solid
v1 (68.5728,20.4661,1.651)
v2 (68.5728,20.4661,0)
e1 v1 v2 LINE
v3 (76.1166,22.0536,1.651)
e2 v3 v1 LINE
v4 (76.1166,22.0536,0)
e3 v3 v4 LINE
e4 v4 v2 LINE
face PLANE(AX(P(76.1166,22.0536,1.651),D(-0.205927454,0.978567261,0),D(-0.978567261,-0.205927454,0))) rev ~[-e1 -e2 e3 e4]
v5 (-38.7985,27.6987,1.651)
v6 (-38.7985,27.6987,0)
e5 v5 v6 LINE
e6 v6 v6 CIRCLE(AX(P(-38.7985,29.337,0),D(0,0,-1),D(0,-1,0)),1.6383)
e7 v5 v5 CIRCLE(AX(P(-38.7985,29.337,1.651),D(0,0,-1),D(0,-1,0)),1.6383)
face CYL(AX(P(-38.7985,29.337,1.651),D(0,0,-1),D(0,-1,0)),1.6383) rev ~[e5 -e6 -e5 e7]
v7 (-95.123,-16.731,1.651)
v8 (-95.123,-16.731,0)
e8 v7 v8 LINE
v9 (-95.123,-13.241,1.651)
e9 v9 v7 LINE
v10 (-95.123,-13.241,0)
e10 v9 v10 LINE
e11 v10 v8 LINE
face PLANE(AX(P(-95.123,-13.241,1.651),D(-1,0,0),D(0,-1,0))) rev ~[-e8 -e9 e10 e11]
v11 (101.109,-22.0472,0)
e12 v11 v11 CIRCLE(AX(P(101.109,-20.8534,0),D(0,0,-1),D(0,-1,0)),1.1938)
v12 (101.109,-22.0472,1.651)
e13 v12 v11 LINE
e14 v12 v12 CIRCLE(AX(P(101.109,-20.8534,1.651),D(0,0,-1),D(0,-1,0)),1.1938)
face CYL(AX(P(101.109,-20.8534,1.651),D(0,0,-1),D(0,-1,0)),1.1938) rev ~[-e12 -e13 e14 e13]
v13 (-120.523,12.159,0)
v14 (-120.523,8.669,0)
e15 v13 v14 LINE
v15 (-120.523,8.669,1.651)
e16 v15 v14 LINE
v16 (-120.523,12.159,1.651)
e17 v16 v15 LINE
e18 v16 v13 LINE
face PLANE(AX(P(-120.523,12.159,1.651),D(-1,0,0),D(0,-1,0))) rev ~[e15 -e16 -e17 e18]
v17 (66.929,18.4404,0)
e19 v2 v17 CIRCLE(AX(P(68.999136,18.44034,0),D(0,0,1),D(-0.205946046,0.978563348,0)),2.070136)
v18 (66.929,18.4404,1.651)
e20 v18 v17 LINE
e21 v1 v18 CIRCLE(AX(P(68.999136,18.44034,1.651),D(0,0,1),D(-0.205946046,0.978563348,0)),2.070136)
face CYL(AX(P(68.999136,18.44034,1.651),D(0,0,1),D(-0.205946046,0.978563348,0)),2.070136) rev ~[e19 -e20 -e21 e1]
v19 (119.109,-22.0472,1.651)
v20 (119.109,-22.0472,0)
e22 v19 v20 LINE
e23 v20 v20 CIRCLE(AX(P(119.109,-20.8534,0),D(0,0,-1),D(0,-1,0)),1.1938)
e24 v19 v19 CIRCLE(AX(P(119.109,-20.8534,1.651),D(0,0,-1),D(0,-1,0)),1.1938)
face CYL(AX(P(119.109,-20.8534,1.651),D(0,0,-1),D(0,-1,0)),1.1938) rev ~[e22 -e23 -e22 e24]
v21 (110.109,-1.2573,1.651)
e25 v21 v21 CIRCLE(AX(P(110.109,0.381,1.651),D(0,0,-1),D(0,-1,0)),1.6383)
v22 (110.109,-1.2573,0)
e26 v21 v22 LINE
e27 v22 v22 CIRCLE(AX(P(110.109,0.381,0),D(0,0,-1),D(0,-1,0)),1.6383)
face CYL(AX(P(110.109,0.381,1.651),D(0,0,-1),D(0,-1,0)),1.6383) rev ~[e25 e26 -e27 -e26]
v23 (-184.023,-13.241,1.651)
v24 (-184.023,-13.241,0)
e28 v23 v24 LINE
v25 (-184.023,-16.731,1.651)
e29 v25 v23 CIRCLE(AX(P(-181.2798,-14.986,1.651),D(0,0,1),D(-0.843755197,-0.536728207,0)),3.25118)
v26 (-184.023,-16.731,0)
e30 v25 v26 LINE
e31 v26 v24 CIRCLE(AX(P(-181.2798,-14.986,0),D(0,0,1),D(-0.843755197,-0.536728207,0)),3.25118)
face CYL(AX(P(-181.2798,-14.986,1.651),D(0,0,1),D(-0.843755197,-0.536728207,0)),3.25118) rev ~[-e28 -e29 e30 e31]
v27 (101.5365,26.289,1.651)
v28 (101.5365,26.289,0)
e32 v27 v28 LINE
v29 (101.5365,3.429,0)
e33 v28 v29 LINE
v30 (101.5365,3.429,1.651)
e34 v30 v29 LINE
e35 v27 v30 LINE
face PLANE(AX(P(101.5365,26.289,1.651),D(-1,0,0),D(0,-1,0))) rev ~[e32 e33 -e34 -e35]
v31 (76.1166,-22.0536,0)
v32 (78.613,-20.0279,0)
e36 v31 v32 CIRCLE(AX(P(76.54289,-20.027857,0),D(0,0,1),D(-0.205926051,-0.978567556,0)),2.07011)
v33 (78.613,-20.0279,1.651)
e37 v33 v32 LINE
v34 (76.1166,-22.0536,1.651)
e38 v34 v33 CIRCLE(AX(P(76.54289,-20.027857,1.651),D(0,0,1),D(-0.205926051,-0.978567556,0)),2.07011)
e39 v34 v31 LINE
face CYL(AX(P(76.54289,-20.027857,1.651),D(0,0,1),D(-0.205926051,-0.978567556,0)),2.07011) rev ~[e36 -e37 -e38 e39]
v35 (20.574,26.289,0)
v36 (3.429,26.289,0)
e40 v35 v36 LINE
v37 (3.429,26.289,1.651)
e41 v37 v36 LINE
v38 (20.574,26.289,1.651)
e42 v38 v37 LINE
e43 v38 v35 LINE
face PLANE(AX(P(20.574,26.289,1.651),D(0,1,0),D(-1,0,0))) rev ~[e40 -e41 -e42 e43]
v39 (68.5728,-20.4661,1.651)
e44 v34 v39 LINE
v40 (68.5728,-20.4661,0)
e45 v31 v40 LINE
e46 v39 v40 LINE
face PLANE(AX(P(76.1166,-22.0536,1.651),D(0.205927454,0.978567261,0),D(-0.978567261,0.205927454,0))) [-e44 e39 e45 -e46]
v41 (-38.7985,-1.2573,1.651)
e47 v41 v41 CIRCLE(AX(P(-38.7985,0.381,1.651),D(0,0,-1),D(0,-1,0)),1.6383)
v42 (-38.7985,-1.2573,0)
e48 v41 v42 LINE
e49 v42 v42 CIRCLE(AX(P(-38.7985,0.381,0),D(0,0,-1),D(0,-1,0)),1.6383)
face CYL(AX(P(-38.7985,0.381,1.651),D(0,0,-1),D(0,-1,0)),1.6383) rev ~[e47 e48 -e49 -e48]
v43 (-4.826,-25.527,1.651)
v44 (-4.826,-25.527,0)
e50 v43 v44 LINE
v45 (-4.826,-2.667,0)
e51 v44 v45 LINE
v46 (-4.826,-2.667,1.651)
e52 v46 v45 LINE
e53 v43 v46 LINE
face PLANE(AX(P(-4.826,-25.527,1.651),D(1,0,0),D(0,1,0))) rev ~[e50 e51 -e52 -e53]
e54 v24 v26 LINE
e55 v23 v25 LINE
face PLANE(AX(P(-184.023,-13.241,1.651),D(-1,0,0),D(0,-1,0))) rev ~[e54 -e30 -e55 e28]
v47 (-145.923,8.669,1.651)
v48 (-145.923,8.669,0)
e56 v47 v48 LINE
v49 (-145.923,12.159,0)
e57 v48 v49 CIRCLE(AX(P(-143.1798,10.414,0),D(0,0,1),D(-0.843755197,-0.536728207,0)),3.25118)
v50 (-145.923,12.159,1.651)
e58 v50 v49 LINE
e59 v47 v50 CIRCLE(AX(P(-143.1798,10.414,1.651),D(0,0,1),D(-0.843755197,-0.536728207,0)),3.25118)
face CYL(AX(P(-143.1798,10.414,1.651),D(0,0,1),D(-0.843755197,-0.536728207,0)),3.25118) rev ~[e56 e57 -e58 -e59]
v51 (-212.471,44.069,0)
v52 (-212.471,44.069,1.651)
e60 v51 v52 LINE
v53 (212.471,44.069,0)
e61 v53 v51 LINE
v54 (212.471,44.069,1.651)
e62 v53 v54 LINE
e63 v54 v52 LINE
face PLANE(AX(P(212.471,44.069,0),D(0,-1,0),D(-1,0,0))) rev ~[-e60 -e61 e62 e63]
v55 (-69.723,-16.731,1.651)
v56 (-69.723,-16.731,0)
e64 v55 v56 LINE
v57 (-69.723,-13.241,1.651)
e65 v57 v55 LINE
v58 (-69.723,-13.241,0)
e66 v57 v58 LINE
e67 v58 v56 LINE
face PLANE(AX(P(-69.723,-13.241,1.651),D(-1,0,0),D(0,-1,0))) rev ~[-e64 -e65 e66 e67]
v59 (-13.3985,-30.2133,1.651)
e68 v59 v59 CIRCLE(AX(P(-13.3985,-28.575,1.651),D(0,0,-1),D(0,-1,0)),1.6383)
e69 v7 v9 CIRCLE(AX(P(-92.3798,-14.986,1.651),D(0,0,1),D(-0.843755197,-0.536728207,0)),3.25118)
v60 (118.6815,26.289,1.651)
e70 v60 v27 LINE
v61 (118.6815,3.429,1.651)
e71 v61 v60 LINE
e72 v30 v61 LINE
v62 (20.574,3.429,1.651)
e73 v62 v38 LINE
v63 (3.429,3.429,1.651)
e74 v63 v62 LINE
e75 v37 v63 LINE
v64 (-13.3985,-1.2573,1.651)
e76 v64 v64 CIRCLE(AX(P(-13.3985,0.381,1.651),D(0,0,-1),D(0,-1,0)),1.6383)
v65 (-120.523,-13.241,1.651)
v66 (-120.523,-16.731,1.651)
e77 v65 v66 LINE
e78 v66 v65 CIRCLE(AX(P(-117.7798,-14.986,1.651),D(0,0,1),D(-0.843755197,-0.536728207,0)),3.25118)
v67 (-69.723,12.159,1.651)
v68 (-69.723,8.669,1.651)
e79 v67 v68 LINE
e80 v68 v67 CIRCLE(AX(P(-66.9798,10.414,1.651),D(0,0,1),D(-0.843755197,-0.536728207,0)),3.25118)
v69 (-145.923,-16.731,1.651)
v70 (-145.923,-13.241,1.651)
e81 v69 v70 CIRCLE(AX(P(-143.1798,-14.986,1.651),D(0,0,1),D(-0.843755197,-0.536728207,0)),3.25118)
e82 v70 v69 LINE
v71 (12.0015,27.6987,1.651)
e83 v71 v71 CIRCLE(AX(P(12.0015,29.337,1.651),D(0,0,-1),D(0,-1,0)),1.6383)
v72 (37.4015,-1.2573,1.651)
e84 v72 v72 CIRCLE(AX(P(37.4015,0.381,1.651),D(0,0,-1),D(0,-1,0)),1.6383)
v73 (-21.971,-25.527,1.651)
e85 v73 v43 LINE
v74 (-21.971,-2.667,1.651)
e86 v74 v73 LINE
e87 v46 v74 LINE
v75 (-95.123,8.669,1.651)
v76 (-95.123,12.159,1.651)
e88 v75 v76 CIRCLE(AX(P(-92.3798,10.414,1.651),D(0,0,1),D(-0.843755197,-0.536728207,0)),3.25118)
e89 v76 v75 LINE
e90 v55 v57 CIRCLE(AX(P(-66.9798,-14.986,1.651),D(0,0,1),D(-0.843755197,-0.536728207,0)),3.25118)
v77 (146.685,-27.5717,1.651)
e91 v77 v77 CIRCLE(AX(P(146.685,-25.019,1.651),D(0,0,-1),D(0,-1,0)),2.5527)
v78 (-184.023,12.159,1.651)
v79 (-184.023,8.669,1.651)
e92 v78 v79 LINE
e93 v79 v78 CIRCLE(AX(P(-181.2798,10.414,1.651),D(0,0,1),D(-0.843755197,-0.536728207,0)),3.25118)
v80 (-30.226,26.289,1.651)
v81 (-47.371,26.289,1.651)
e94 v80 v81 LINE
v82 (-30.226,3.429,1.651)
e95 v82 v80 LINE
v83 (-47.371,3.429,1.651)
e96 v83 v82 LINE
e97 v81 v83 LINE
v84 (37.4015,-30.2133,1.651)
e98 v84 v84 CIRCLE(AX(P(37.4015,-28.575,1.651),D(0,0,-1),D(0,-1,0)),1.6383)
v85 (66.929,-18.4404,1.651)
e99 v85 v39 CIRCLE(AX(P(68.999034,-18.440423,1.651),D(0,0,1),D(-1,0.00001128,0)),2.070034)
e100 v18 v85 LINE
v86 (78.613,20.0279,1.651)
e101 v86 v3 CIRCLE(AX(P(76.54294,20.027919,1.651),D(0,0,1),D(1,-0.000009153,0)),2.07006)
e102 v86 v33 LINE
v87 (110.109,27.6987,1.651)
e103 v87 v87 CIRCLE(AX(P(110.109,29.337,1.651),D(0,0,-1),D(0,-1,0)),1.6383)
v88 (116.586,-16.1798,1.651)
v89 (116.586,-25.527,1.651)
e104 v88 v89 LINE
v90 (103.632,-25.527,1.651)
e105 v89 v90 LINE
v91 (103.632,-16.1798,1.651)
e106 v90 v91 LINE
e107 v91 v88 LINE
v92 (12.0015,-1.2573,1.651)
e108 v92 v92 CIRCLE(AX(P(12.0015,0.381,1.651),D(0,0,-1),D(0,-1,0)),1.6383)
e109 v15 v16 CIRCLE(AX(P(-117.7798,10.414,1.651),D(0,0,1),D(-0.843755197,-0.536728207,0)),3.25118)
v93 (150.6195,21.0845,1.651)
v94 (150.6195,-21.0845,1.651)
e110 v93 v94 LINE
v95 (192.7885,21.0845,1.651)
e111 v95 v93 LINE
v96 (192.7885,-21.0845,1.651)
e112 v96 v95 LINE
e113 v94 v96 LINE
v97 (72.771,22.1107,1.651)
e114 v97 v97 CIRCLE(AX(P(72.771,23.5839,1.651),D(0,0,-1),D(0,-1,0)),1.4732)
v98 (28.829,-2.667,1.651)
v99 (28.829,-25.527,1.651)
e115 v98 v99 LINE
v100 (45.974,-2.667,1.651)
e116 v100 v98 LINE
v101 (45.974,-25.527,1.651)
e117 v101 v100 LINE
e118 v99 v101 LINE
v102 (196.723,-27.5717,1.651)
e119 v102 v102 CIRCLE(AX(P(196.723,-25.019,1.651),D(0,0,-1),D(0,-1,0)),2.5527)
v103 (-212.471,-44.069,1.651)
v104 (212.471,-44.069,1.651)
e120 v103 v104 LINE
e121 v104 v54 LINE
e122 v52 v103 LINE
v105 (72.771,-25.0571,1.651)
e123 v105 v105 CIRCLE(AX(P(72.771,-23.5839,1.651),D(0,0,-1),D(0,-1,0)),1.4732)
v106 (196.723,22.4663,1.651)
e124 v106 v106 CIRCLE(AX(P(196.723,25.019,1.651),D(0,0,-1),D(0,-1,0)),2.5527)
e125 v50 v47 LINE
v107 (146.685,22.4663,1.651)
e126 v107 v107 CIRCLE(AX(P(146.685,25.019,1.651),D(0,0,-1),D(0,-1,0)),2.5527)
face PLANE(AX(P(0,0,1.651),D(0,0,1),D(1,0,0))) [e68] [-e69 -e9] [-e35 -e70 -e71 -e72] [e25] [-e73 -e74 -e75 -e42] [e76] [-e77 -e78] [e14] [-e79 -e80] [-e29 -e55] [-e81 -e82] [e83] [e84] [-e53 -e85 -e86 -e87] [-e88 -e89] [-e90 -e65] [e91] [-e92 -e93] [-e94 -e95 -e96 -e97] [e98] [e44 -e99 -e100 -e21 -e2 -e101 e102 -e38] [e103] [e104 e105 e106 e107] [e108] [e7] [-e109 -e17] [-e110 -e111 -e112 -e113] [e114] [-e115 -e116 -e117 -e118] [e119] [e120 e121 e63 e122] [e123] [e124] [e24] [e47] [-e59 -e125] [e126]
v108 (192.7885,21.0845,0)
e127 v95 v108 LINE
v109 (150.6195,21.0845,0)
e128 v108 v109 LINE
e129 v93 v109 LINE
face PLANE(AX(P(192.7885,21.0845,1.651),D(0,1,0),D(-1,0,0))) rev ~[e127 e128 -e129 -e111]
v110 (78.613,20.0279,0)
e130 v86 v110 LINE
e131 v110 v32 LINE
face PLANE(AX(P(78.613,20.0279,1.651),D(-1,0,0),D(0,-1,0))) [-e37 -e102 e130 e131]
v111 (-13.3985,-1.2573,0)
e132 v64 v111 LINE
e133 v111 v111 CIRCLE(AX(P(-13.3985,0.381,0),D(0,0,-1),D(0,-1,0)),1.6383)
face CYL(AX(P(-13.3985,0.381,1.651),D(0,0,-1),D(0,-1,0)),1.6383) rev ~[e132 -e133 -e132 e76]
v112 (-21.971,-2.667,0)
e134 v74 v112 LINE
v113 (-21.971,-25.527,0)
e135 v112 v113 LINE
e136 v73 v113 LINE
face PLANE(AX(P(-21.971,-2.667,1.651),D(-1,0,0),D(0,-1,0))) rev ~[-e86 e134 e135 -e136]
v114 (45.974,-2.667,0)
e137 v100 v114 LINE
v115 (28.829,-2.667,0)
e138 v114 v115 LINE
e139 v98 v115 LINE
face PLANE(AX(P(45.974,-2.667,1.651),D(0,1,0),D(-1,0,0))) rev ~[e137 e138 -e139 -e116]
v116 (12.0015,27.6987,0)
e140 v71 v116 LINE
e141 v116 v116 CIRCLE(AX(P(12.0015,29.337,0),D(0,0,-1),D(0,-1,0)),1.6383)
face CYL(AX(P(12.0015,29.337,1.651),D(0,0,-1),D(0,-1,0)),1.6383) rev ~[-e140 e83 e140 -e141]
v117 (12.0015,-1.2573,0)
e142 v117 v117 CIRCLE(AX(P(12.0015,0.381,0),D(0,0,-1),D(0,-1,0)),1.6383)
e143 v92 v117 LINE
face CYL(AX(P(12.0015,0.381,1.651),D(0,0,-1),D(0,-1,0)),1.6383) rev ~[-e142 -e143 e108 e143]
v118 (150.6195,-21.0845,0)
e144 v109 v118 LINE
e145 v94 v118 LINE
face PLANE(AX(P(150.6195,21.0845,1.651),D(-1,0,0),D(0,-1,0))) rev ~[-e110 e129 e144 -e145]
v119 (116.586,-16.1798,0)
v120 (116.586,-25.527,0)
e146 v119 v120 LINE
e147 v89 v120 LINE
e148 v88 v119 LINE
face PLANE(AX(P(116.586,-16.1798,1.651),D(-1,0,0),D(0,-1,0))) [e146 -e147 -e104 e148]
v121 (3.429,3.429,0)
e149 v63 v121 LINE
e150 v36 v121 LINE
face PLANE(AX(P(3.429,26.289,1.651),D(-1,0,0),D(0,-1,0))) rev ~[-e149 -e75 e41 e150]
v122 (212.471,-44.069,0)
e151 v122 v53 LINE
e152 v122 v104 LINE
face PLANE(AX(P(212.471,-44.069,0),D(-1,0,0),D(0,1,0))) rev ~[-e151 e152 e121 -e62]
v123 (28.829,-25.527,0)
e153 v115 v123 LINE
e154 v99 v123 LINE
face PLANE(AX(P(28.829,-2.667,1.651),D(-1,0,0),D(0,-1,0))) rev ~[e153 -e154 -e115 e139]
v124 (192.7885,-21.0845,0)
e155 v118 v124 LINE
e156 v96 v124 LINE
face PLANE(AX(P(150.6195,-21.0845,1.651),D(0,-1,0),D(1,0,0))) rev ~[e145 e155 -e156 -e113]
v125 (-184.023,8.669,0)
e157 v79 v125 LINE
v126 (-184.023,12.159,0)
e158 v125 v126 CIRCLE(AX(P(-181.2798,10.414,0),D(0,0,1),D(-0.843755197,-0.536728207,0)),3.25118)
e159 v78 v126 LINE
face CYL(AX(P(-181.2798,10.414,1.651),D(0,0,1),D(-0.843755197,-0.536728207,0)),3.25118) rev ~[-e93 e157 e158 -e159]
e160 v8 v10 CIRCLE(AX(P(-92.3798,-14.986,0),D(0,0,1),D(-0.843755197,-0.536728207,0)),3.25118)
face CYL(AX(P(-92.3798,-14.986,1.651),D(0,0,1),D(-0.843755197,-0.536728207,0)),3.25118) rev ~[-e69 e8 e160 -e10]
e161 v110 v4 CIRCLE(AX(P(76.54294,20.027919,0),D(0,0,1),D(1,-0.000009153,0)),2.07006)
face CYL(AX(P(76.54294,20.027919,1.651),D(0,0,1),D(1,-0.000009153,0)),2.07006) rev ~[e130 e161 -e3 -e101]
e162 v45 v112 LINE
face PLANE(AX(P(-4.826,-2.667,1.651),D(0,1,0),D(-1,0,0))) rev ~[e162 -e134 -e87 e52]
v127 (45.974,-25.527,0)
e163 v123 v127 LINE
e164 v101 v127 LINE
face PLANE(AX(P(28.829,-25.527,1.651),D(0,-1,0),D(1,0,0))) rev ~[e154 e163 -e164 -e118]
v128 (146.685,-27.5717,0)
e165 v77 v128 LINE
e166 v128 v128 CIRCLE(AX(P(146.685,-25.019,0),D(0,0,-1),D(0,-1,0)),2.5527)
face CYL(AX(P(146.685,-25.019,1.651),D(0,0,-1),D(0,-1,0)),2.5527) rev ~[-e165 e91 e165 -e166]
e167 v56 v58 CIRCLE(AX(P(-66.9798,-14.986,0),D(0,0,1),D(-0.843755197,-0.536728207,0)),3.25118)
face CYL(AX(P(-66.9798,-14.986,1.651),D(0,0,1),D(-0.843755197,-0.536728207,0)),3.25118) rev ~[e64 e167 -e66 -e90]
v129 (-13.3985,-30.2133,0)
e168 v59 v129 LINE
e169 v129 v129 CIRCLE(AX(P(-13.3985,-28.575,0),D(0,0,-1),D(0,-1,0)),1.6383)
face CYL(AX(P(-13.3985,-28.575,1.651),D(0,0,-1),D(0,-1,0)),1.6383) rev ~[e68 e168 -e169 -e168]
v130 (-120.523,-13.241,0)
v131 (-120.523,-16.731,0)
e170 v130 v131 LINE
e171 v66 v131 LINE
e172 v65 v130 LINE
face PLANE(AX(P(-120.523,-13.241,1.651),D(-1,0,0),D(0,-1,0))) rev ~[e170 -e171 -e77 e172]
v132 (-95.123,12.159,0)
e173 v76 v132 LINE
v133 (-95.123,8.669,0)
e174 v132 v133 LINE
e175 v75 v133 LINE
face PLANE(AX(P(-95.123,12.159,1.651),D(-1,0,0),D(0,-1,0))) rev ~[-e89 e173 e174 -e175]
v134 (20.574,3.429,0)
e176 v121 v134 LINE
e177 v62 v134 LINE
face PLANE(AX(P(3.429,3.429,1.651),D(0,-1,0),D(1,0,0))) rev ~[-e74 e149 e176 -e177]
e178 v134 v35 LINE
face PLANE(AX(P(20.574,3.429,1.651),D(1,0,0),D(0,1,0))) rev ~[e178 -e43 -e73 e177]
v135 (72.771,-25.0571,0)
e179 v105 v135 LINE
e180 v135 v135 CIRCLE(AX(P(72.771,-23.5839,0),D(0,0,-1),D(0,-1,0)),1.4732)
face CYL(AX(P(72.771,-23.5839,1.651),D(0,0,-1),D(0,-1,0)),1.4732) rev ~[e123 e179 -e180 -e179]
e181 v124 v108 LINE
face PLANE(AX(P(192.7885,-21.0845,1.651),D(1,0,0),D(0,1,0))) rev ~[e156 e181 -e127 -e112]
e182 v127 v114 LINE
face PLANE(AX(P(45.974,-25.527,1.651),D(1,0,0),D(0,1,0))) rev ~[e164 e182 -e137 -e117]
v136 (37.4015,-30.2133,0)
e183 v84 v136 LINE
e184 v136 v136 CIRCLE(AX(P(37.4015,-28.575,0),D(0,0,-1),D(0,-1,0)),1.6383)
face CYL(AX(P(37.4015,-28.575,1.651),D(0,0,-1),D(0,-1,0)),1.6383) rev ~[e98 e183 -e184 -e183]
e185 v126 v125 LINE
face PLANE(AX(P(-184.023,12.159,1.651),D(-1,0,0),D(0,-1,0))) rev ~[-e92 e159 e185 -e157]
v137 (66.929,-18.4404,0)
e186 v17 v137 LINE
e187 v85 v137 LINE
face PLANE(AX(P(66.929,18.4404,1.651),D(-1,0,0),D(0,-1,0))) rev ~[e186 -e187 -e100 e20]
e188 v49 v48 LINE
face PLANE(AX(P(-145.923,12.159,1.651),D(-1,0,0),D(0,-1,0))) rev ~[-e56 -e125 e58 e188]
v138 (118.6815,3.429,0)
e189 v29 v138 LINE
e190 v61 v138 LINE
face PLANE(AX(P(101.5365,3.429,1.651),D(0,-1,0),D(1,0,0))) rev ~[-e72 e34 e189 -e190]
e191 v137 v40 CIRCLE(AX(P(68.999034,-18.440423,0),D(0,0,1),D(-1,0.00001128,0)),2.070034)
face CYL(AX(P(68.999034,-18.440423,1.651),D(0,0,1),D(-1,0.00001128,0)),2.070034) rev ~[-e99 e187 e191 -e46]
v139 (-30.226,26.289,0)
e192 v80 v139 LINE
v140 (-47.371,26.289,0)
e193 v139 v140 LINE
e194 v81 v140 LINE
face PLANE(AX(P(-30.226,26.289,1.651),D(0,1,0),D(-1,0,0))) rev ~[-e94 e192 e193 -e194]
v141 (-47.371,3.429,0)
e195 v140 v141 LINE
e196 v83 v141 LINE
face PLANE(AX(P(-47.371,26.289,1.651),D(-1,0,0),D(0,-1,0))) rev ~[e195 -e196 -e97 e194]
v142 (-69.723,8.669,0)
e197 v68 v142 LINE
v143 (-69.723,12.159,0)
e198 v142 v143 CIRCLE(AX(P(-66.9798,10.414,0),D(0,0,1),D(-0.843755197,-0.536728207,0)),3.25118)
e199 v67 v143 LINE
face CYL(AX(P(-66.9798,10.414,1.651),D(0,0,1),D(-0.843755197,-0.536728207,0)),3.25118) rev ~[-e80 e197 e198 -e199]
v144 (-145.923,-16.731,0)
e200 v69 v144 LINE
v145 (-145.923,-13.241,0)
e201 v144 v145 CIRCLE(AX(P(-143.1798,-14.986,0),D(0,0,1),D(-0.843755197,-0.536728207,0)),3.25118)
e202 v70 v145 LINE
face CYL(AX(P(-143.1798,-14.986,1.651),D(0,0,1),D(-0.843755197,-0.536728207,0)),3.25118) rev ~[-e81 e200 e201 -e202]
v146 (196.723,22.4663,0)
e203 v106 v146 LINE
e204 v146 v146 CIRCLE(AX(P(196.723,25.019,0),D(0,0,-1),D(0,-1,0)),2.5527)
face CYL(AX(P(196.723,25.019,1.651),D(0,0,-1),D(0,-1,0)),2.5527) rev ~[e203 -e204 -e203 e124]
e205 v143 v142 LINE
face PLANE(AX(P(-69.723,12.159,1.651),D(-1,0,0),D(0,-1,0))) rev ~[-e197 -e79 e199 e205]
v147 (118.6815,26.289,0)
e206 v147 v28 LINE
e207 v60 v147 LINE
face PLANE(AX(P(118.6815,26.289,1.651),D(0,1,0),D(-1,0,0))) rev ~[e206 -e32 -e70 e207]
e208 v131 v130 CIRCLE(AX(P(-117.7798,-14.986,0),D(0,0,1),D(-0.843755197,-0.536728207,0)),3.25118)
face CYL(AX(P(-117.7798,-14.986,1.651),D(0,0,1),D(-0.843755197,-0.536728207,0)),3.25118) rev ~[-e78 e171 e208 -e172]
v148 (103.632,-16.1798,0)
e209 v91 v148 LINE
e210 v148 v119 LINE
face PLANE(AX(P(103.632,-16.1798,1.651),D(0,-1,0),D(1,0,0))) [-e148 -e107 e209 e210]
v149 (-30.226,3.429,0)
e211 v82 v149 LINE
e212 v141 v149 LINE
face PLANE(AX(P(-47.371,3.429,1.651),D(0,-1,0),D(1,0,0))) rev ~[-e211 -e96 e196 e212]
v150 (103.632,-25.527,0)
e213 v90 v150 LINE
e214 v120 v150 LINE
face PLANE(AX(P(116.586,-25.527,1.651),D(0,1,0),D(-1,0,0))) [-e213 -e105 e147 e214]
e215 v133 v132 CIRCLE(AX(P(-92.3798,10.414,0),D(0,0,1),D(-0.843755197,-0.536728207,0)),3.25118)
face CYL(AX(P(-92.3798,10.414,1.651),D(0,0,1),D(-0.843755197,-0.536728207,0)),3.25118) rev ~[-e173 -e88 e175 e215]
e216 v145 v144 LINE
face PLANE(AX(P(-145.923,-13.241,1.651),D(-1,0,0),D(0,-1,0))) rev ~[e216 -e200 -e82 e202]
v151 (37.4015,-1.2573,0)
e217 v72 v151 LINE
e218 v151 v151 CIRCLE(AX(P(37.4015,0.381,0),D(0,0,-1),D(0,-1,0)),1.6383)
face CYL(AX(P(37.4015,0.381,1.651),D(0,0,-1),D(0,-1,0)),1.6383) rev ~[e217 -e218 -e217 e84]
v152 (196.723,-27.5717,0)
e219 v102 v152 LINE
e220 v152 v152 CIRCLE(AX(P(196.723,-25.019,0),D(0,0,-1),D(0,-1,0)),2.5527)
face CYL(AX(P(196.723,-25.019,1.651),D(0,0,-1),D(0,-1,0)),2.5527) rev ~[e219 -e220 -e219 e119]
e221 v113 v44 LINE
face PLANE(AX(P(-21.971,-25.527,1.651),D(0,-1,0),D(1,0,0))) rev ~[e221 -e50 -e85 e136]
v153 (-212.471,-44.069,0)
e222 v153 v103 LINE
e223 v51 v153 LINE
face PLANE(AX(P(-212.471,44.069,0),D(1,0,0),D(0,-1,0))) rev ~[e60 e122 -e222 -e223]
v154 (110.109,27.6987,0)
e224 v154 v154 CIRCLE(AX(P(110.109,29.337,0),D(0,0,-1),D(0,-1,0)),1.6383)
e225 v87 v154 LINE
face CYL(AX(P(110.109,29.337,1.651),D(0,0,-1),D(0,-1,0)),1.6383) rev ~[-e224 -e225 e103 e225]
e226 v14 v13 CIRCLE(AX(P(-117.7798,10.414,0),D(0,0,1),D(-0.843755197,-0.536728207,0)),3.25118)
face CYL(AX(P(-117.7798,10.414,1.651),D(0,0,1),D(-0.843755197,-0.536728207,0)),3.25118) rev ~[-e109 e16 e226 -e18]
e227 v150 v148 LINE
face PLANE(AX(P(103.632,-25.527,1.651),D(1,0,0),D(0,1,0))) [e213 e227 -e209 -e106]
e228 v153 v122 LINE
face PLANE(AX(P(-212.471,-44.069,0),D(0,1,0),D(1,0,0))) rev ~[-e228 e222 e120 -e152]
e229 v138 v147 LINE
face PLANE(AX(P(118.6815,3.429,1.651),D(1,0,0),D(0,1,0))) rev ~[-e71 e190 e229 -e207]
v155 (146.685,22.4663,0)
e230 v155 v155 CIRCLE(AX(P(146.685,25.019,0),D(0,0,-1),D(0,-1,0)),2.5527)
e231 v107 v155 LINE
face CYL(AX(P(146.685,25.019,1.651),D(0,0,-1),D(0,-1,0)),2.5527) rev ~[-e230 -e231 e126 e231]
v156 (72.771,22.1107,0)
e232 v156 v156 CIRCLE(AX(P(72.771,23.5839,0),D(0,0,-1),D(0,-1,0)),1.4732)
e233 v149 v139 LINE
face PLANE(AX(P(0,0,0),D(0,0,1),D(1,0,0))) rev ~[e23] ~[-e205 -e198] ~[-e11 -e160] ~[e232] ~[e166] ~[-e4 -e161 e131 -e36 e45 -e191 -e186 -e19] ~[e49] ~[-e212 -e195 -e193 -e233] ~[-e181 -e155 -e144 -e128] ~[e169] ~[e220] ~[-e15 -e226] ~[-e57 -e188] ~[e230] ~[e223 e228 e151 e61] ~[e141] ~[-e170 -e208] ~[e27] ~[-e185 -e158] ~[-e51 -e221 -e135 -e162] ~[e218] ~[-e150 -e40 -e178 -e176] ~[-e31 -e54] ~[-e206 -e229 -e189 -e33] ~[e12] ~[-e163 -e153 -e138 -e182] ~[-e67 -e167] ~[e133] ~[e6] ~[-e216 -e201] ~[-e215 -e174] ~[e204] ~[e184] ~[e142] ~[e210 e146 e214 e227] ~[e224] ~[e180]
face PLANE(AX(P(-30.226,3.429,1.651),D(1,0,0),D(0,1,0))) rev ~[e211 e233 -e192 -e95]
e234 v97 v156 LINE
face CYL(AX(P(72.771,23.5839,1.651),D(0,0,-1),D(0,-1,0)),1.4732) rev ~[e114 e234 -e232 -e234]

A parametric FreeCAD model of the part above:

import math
import FreeCAD as App
import Part
import Sketcher
Q = App.Units.Quantity

doc = App.newDocument("Part")
params = doc.addObject("Spreadsheet::Sheet", "Params")
for row, (alias, value) in enumerate([
    ("sketch1_width", "16.73 in"),
    ("sketch1_height", "3.47 in"),
    ("pad1_length", "0.065 in"),
    ("sketch2_radius", "0.128 in"),
    ("sketch3_diameter", "0.116 in"),
    ("hole_diameter", "0.116 in"),
    ("sketch4_height", "1.577 in"),
    ("sketch4_height2", "1.452 in"),
    ("sketch5_diameter", "0.129 in"),
    ("hole2_diameter", "0.129 in"),
    ("sketch6_height", "0.9 in"),
    ("sketch6_width", "0.675 in"),
    ("pocket3_length", "1 in"),
    ("sketch7_diameter", "0.129 in"),
    ("hole3_diameter", "0.129 in"),
    ("sketch8_height", "0.9 in"),
    ("sketch8_width", "0.675 in"),
    ("pocket4_length", "1 in"),
    ("sketch9_diameter", "0.094 in"),
    ("hole4_diameter", "0.094 in"),
    ("sketch10_width", "0.51 in"),
    ("sketch10_height", "0.368 in"),
    ("pocket5_length", "1 in"),
    ("sketch11_diameter", "0.201 in"),
    ("hole5_diameter", "0.201 in"),
], start=1):
    params.set(f"A{row}", alias)
    params.set(f"B{row}", "=" + value)
    params.setAlias(f"B{row}", alias)

body = doc.addObject("PartDesign::Body", "Body")

sketch1 = body.newObject("Sketcher::SketchObject", "Sketch")
sketch1.AttachmentSupport = (doc.getObject("XY_Plane"), [""])
sketch1.MapMode = "FlatFace"
sketch1.addGeometry([
    Part.LineSegment(App.Vector(-212.471, 44.069, 0), App.Vector(-212.471, -44.069, 0)),
    Part.LineSegment(App.Vector(-212.471, -44.069, 0), App.Vector(212.471, -44.069, 0)),
    Part.LineSegment(App.Vector(212.471, -44.069, 0), App.Vector(212.471, 44.069, 0)),
    Part.LineSegment(App.Vector(212.471, 44.069, 0), App.Vector(-212.471, 44.069, 0)),
], False)
sketch1.addConstraint([
    Sketcher.Constraint("Coincident", 0, 2, 1, 1),
    Sketcher.Constraint("Coincident", 1, 2, 2, 1),
    Sketcher.Constraint("Coincident", 2, 2, 3, 1),
    Sketcher.Constraint("Coincident", 3, 2, 0, 1),
    Sketcher.Constraint("Vertical", 0),
    Sketcher.Constraint("Horizontal", 1),
    Sketcher.Constraint("Vertical", 2),
    Sketcher.Constraint("Horizontal", 3),
    Sketcher.Constraint("Symmetric", 0, 2, 2, 2, -1, 1),
    Sketcher.Constraint("DistanceX", 1, 1, 1, 2, Q("16.73 in")),
    Sketcher.Constraint("DistanceY", 0, 2, 0, 1, Q("3.47 in")),
])
sketch1.setExpression("Constraints[9]", "Params.sketch1_width")
sketch1.setExpression("Constraints[10]", "Params.sketch1_height")
pad1 = body.newObject("PartDesign::Pad", "Pad")
pad1.Profile = sketch1
pad1.setExpression("Length", "Params.pad1_length")

sketch2 = body.newObject("Sketcher::SketchObject", "Sketch001")
sketch2.AttachmentSupport = (doc.getObject("XY_Plane"), [""])
sketch2.MapMode = "FlatFace"
sketch2.AttachmentOffset = App.Placement(App.Vector(0, 0, 0.065 * 25.4), App.Rotation())
sketch2.addGeometry([
    Part.LineSegment(App.Vector(-184.023, 12.159, 0), App.Vector(-184.023, 8.669, 0)),
    Part.ArcOfCircle(Part.Circle(App.Vector(-181.2798, 10.414, 0), App.Vector(0, 0, 1), 3.25118), math.radians(-147.53881), math.radians(147.53881)),
    Part.ArcOfCircle(Part.Circle(App.Vector(-143.1798, 10.414, 0), App.Vector(0, 0, 1), 3.25118), math.radians(-147.53881), math.radians(147.53881)),
    Part.LineSegment(App.Vector(-145.923, 12.159, 0), App.Vector(-145.923, 8.669, 0)),
    Part.ArcOfCircle(Part.Circle(App.Vector(-181.2798, -14.986, 0), App.Vector(0, 0, 1), 3.25118), math.radians(-147.53881), math.radians(147.53881)),
    Part.LineSegment(App.Vector(-184.023, -13.241, 0), App.Vector(-184.023, -16.731, 0)),
    Part.ArcOfCircle(Part.Circle(App.Vector(-143.1798, -14.986, 0), App.Vector(0, 0, 1), 3.25118), math.radians(-147.53881), math.radians(147.53881)),
    Part.LineSegment(App.Vector(-145.923, -13.241, 0), App.Vector(-145.923, -16.731, 0)),
    Part.ArcOfCircle(Part.Circle(App.Vector(-117.7798, 10.414, 0), App.Vector(0, 0, 1), 3.25118), math.radians(-147.53881), math.radians(147.53881)),
    Part.LineSegment(App.Vector(-120.523, 12.159, 0), App.Vector(-120.523, 8.669, 0)),
    Part.LineSegment(App.Vector(-120.523, -13.241, 0), App.Vector(-120.523, -16.731, 0)),
    Part.ArcOfCircle(Part.Circle(App.Vector(-117.7798, -14.986, 0), App.Vector(0, 0, 1), 3.25118), math.radians(-147.53881), math.radians(147.53881)),
    Part.ArcOfCircle(Part.Circle(App.Vector(-92.3798, 10.414, 0), App.Vector(0, 0, 1), 3.25118), math.radians(-147.53881), math.radians(147.53881)),
    Part.LineSegment(App.Vector(-95.123, 12.159, 0), App.Vector(-95.123, 8.669, 0)),
    Part.LineSegment(App.Vector(-95.123, -13.241, 0), App.Vector(-95.123, -16.731, 0)),
    Part.ArcOfCircle(Part.Circle(App.Vector(-92.3798, -14.986, 0), App.Vector(0, 0, 1), 3.25118), math.radians(-147.53881), math.radians(147.53881)),
    Part.ArcOfCircle(Part.Circle(App.Vector(-66.9798, 10.414, 0), App.Vector(0, 0, 1), 3.25118), math.radians(-147.53881), math.radians(147.53881)),
    Part.LineSegment(App.Vector(-69.723, 12.159, 0), App.Vector(-69.723, 8.669, 0)),
    Part.LineSegment(App.Vector(-69.723, -13.241, 0), App.Vector(-69.723, -16.731, 0)),
    Part.ArcOfCircle(Part.Circle(App.Vector(-66.9798, -14.986, 0), App.Vector(0, 0, 1), 3.25118), math.radians(-147.53881), math.radians(147.53881)),
], False)
sketch2.addConstraint([
    Sketcher.Constraint("Coincident", 0, 1, 1, 2),
    Sketcher.Constraint("Coincident", 1, 1, 0, 2),
    Sketcher.Constraint("Coincident", 2, 1, 3, 2),
    Sketcher.Constraint("Coincident", 3, 1, 2, 2),
    Sketcher.Constraint("Coincident", 4, 1, 5, 2),
    Sketcher.Constraint("Coincident", 5, 1, 4, 2),
    Sketcher.Constraint("Coincident", 6, 1, 7, 2),
    Sketcher.Constraint("Coincident", 7, 1, 6, 2),
    Sketcher.Constraint("Coincident", 8, 1, 9, 2),
    Sketcher.Constraint("Coincident", 9, 1, 8, 2),
    Sketcher.Constraint("Coincident", 10, 1, 11, 2),
    Sketcher.Constraint("Coincident", 11, 1, 10, 2),
    Sketcher.Constraint("Coincident", 12, 1, 13, 2),
    Sketcher.Constraint("Coincident", 13, 1, 12, 2),
    Sketcher.Constraint("Coincident", 14, 1, 15, 2),
    Sketcher.Constraint("Coincident", 15, 1, 14, 2),
    Sketcher.Constraint("Coincident", 16, 1, 17, 2),
    Sketcher.Constraint("Coincident", 17, 1, 16, 2),
    Sketcher.Constraint("Coincident", 18, 1, 19, 2),
    Sketcher.Constraint("Coincident", 19, 1, 18, 2),
    Sketcher.Constraint("Vertical", 0),
    Sketcher.Constraint("Vertical", 3),
    Sketcher.Constraint("Vertical", 5),
    Sketcher.Constraint("Vertical", 7),
    Sketcher.Constraint("Vertical", 9),
    Sketcher.Constraint("Vertical", 10),
    Sketcher.Constraint("Vertical", 13),
    Sketcher.Constraint("Vertical", 14),
    Sketcher.Constraint("Vertical", 17),
    Sketcher.Constraint("Vertical", 18),
    Sketcher.Constraint("Equal", 1, 2),
    Sketcher.Constraint("Equal", 2, 4),
    Sketcher.Constraint("Equal", 4, 6),
    Sketcher.Constraint("Equal", 6, 8),
    Sketcher.Constraint("Equal", 8, 11),
    Sketcher.Constraint("Equal", 11, 12),
    Sketcher.Constraint("Equal", 12, 15),
    Sketcher.Constraint("Equal", 15, 16),
    Sketcher.Constraint("Equal", 16, 19),
    Sketcher.Constraint("Horizontal", 1, 3, 2, 3),
    Sketcher.Constraint("Horizontal", 4, 3, 6, 3),
    Sketcher.Constraint("Horizontal", 2, 3, 8, 3),
    Sketcher.Constraint("Horizontal", 6, 3, 11, 3),
    Sketcher.Constraint("Horizontal", 8, 3, 12, 3),
    Sketcher.Constraint("Horizontal", 11, 3, 15, 3),
    Sketcher.Constraint("Horizontal", 12, 3, 16, 3),
    Sketcher.Constraint("Horizontal", 15, 3, 19, 3),
    Sketcher.Constraint("Horizontal", 1, 1, 2, 1),
    Sketcher.Constraint("Horizontal", 4, 1, 6, 1),
    Sketcher.Constraint("Horizontal", 2, 1, 8, 1),
    Sketcher.Constraint("Horizontal", 7, 1, 10, 1),
    Sketcher.Constraint("Horizontal", 8, 1, 12, 1),
    Sketcher.Constraint("Horizontal", 10, 1, 14, 1),
    Sketcher.Constraint("Horizontal", 12, 1, 16, 1),
    Sketcher.Constraint("Horizontal", 14, 1, 18, 1),
    Sketcher.Constraint("Vertical", 1, 3, 4, 3),
    Sketcher.Constraint("Vertical", 2, 3, 6, 3),
    Sketcher.Constraint("Vertical", 8, 3, 11, 3),
    Sketcher.Constraint("Vertical", 12, 3, 15, 3),
    Sketcher.Constraint("Vertical", 16, 3, 19, 3),
    Sketcher.Constraint("Vertical", 1, 1, 4, 1),
    Sketcher.Constraint("Radius", 1, Q("0.128 in")),
    Sketcher.Constraint("DistanceY", 4, 3, 1, 3, Q("1 in")),
    Sketcher.Constraint("DistanceX", 2, 3, 8, 3, Q("1 in")),
    Sketcher.Constraint("DistanceX", 8, 3, 12, 3, Q("1 in")),
    Sketcher.Constraint("DistanceX", 12, 3, 16, 3, Q("1 in")),
    Sketcher.Constraint("DistanceX", 1, 3, 2, 3, Q("1.5 in")),
    Sketcher.Constraint("DistanceY", -1, 1, 1, 3, Q("0.41 in")),
    Sketcher.Constraint("DistanceY", 0, 2, 0, 1, Q("0.1374 in")),
    Sketcher.Constraint("DistanceX", 1, 3, -1, 1, Q("7.137 in")),
])
sketch2.setExpression("Constraints[61]", "Params.sketch2_radius")
pocket1 = body.newObject("PartDesign::Pocket", "Pocket")
pocket1.Profile = sketch2
pocket1.Type = "ThroughAll"

sketch3 = body.newObject("Sketcher::SketchObject", "Sketch002")
sketch3.AttachmentSupport = (doc.getObject("XY_Plane"), [""])
sketch3.MapMode = "FlatFace"
sketch3.AttachmentOffset = App.Placement(App.Vector(0, 0, 0.065 * 25.4), App.Rotation())
sketch3.addGeometry([
    Part.Circle(App.Vector(72.771, 23.5839, 0), App.Vector(0, 0, 1), 1.4732),
    Part.Circle(App.Vector(72.771, -23.5839, 0), App.Vector(0, 0, 1), 1.4732),
], False)
sketch3.addConstraint([
    Sketcher.Constraint("Equal", 0, 1),
    Sketcher.Constraint("Symmetric", 0, 3, 1, 3, -1),
    Sketcher.Constraint("Diameter", 0, Q("0.116 in")),
    Sketcher.Constraint("DistanceX", -1, 1, 0, 3, Q("2.865 in")),
    Sketcher.Constraint("DistanceY", 1, 3, 0, 3, Q("1.857 in")),
])
sketch3.setExpression("Constraints[2]", "Params.sketch3_diameter")
doc.recompute()
hole = body.newObject("PartDesign::Hole", "Hole")
hole.Profile = sketch3
hole.ThreadType = "None"
hole.setExpression("Diameter", "Params.hole_diameter")
hole.DepthType = "ThroughAll"

sketch4 = body.newObject("Sketcher::SketchObject", "Sketch003")
sketch4.AttachmentSupport = (doc.getObject("XY_Plane"), [""])
sketch4.MapMode = "FlatFace"
sketch4.AttachmentOffset = App.Placement(App.Vector(0, 0, 0.065 * 25.4), App.Rotation())
sketch4.addGeometry([
    Part.LineSegment(App.Vector(78.613, -20.0279, 0), App.Vector(78.613, 20.0279, 0)),
    Part.ArcOfCircle(Part.Circle(App.Vector(76.5429, 20.0279, 0), App.Vector(0, 0, 1), 2.0701), math.radians(0), math.radians(101.884239)),
    Part.LineSegment(App.Vector(76.1166, 22.0536, 0), App.Vector(68.5728, 20.4661, 0)),
    Part.ArcOfCircle(Part.Circle(App.Vector(68.9991, 18.4404, 0), App.Vector(0, 0, 1), 2.070071), math.radians(101.884239), math.radians(180)),
    Part.LineSegment(App.Vector(66.929, 18.4404, 0), App.Vector(66.929, -18.4404, 0)),
    Part.ArcOfCircle(Part.Circle(App.Vector(68.9991, -18.4404, 0), App.Vector(0, 0, 1), 2.0701), math.radians(180), math.radians(258.115761)),
    Part.LineSegment(App.Vector(68.5728, -20.4661, 0), App.Vector(76.1166, -22.0536, 0)),
    Part.ArcOfCircle(Part.Circle(App.Vector(76.5429, -20.0279, 0), App.Vector(0, 0, 1), 2.070071), math.radians(-101.884239), math.radians(0)),
], False)
sketch4.addConstraint([
    Sketcher.Constraint("Tangent", 0, 2, 1, 1),
    Sketcher.Constraint("Tangent", 1, 2, 2, 1),
    Sketcher.Constraint("Tangent", 2, 2, 3, 1),
    Sketcher.Constraint("Tangent", 3, 2, 4, 1),
    Sketcher.Constraint("Tangent", 4, 2, 5, 1),
    Sketcher.Constraint("Tangent", 5, 2, 6, 1),
    Sketcher.Constraint("Tangent", 6, 2, 7, 1),
    Sketcher.Constraint("Tangent", 7, 2, 0, 1),
    Sketcher.Constraint("Vertical", 0),
    Sketcher.Constraint("Vertical", 4),
    Sketcher.Constraint("Equal", 1, 3),
    Sketcher.Constraint("Equal", 3, 5),
    Sketcher.Constraint("Equal", 5, 7),
    Sketcher.Constraint("Symmetric", 2, 2, 5, 2, -1),
    Sketcher.Constraint("Radius", 1, Q("0.0815 in")),
    Sketcher.Constraint("DistanceY", 0, 1, 0, 2, Q("1.577 in")),
    Sketcher.Constraint("DistanceY", 4, 2, 4, 1, Q("1.452 in")),
    Sketcher.Constraint("DistanceX", 3, 2, 0, 2, Q("0.46 in")),
    Sketcher.Constraint("DistanceX", -1, 1, 0, 2, Q("3.095 in")),
])
sketch4.setExpression("Constraints[15]", "Params.sketch4_height")
sketch4.setExpression("Constraints[16]", "Params.sketch4_height2")
pocket2 = body.newObject("PartDesign::Pocket", "Pocket001")
pocket2.Profile = sketch4
pocket2.Type = "ThroughAll"

sketch5 = body.newObject("Sketcher::SketchObject", "Sketch004")
sketch5.AttachmentSupport = (doc.getObject("XY_Plane"), [""])
sketch5.MapMode = "FlatFace"
sketch5.AttachmentOffset = App.Placement(App.Vector(0, 0, 0.065 * 25.4), App.Rotation())
sketch5.addGeometry([
    Part.Circle(App.Vector(-38.7985, 29.337, 0), App.Vector(0, 0, 1), 1.6383),
    Part.Circle(App.Vector(-38.7985, 0.381, 0), App.Vector(0, 0, 1), 1.6383),
    Part.Circle(App.Vector(12.0015, 0.381, 0), App.Vector(0, 0, 1), 1.6383),
    Part.Circle(App.Vector(12.0015, 29.337, 0), App.Vector(0, 0, 1), 1.6383),
    Part.Circle(App.Vector(-13.3985, -28.575, 0), App.Vector(0, 0, 1), 1.6383),
    Part.Circle(App.Vector(-13.3985, 0.381, 0), App.Vector(0, 0, 1), 1.6383),
    Part.Circle(App.Vector(37.4015, -28.575, 0), App.Vector(0, 0, 1), 1.6383),
    Part.Circle(App.Vector(37.4015, 0.381, 0), App.Vector(0, 0, 1), 1.6383),
], False)
sketch5.addConstraint([
    Sketcher.Constraint("Equal", 0, 1),
    Sketcher.Constraint("Equal", 1, 2),
    Sketcher.Constraint("Equal", 2, 3),
    Sketcher.Constraint("Equal", 3, 4),
    Sketcher.Constraint("Equal", 4, 5),
    Sketcher.Constraint("Equal", 5, 6),
    Sketcher.Constraint("Equal", 6, 7),
    Sketcher.Constraint("Horizontal", 1, 3, 2, 3),
    Sketcher.Constraint("Horizontal", 0, 3, 3, 3),
    Sketcher.Constraint("Horizontal", 2, 3, 5, 3),
    Sketcher.Constraint("Horizontal", 4, 3, 6, 3),
    Sketcher.Constraint("Horizontal", 5, 3, 7, 3),
    Sketcher.Constraint("Vertical", 0, 3, 1, 3),
    Sketcher.Constraint("Vertical", 2, 3, 3, 3),
    Sketcher.Constraint("Vertical", 4, 3, 5, 3),
    Sketcher.Constraint("Vertical", 6, 3, 7, 3),
    Sketcher.Constraint("Diameter", 0, Q("0.129 in")),
    Sketcher.Constraint("DistanceX", 1, 3, 2, 3, Q("2 in")),
    Sketcher.Constraint("DistanceX", 1, 3, 4, 3, Q("1 in")),
    Sketcher.Constraint("DistanceX", 2, 3, 6, 3, Q("1 in")),
    Sketcher.Constraint("DistanceY", 1, 3, 0, 3, Q("1.14 in")),
    Sketcher.Constraint("DistanceY", 4, 3, 1, 3, Q("1.14 in")),
    Sketcher.Constraint("DistanceY", -1, 1, 0, 3, Q("1.155 in")),
    Sketcher.Constraint("DistanceX", 0, 3, -1, 1, Q("1.5275 in")),
])
sketch5.setExpression("Constraints[16]", "Params.sketch5_diameter")
doc.recompute()
hole2 = body.newObject("PartDesign::Hole", "Hole001")
hole2.Profile = sketch5
hole2.ThreadType = "None"
hole2.setExpression("Diameter", "Params.hole2_diameter")
hole2.DepthType = "ThroughAll"

sketch6 = body.newObject("Sketcher::SketchObject", "Sketch005")
sketch6.AttachmentSupport = (doc.getObject("XY_Plane"), [""])
sketch6.MapMode = "FlatFace"
sketch6.AttachmentOffset = App.Placement(App.Vector(0, 0, 0.065 * 25.4), App.Rotation())
sketch6.addGeometry([
    Part.LineSegment(App.Vector(-47.371, 26.289, 0), App.Vector(-47.371, 3.429, 0)),
    Part.LineSegment(App.Vector(-47.371, 3.429, 0), App.Vector(-30.226, 3.429, 0)),
    Part.LineSegment(App.Vector(-30.226, 3.429, 0), App.Vector(-30.226, 26.289, 0)),
    Part.LineSegment(App.Vector(-30.226, 26.289, 0), App.Vector(-47.371, 26.289, 0)),
    Part.LineSegment(App.Vector(3.429, 26.289, 0), App.Vector(3.429, 3.429, 0)),
    Part.LineSegment(App.Vector(3.429, 3.429, 0), App.Vector(20.574, 3.429, 0)),
    Part.LineSegment(App.Vector(20.574, 3.429, 0), App.Vector(20.574, 26.289, 0)),
    Part.LineSegment(App.Vector(20.574, 26.289, 0), App.Vector(3.429, 26.289, 0)),
    Part.LineSegment(App.Vector(-21.971, -2.667, 0), App.Vector(-21.971, -25.527, 0)),
    Part.LineSegment(App.Vector(-21.971, -25.527, 0), App.Vector(-4.826, -25.527, 0)),
    Part.LineSegment(App.Vector(-4.826, -25.527, 0), App.Vector(-4.826, -2.667, 0)),
    Part.LineSegment(App.Vector(-4.826, -2.667, 0), App.Vector(-21.971, -2.667, 0)),
    Part.LineSegment(App.Vector(28.829, -2.667, 0), App.Vector(28.829, -25.527, 0)),
    Part.LineSegment(App.Vector(28.829, -25.527, 0), App.Vector(45.974, -25.527, 0)),
    Part.LineSegment(App.Vector(45.974, -25.527, 0), App.Vector(45.974, -2.667, 0)),
    Part.LineSegment(App.Vector(45.974, -2.667, 0), App.Vector(28.829, -2.667, 0)),
], False)
sketch6.addConstraint([
    Sketcher.Constraint("Coincident", 0, 2, 1, 1),
    Sketcher.Constraint("Coincident", 1, 2, 2, 1),
    Sketcher.Constraint("Coincident", 2, 2, 3, 1),
    Sketcher.Constraint("Coincident", 3, 2, 0, 1),
    Sketcher.Constraint("Coincident", 4, 2, 5, 1),
    Sketcher.Constraint("Coincident", 5, 2, 6, 1),
    Sketcher.Constraint("Coincident", 6, 2, 7, 1),
    Sketcher.Constraint("Coincident", 7, 2, 4, 1),
    Sketcher.Constraint("Coincident", 8, 2, 9, 1),
    Sketcher.Constraint("Coincident", 9, 2, 10, 1),
    Sketcher.Constraint("Coincident", 10, 2, 11, 1),
    Sketcher.Constraint("Coincident", 11, 2, 8, 1),
    Sketcher.Constraint("Coincident", 12, 2, 13, 1),
    Sketcher.Constraint("Coincident", 13, 2, 14, 1),
    Sketcher.Constraint("Coincident", 14, 2, 15, 1),
    Sketcher.Constraint("Coincident", 15, 2, 12, 1),
    Sketcher.Constraint("Vertical", 0),
    Sketcher.Constraint("Horizontal", 1),
    Sketcher.Constraint("Vertical", 2),
    Sketcher.Constraint("Horizontal", 3),
    Sketcher.Constraint("Vertical", 4),
    Sketcher.Constraint("Horizontal", 5),
    Sketcher.Constraint("Vertical", 6),
    Sketcher.Constraint("Horizontal", 7),
    Sketcher.Constraint("Vertical", 8),
    Sketcher.Constraint("Horizontal", 9),
    Sketcher.Constraint("Vertical", 10),
    Sketcher.Constraint("Horizontal", 11),
    Sketcher.Constraint("Vertical", 12),
    Sketcher.Constraint("Horizontal", 13),
    Sketcher.Constraint("Vertical", 14),
    Sketcher.Constraint("Horizontal", 15),
    Sketcher.Constraint("Horizontal", 1, 2, 4, 2),
    Sketcher.Constraint("Horizontal", 3, 2, 6, 2),
    Sketcher.Constraint("Horizontal", 9, 2, 12, 2),
    Sketcher.Constraint("Horizontal", 11, 2, 14, 2),
    Sketcher.Constraint("Equal", 3, 5),
    Sketcher.Constraint("Equal", 7, 9),
    Sketcher.Constraint("Equal", 11, 13),
    Sketcher.Constraint("Equal", 6, 8),
    Sketcher.Constraint("DistanceY", 0, 2, 0, 1, Q("0.9 in")),
    Sketcher.Constraint("DistanceX", 1, 1, 1, 2, Q("0.675 in")),
    Sketcher.Constraint("DistanceY", 8, 2, 1, 2, Q("1.14 in")),
    Sketcher.Constraint("DistanceX", 0, 2, 4, 2, Q("2 in")),
    Sketcher.Constraint("DistanceX", 0, 2, 8, 2, Q("1 in")),
    Sketcher.Constraint("DistanceX", 4, 2, 12, 2, Q("1 in")),
    Sketcher.Constraint("DistanceX", 1, 2, -1, 1, Q("1.19 in")),
    Sketcher.Constraint("DistanceY", -1, 1, 0, 2, Q("0.135 in")),
])
sketch6.setExpression("Constraints[40]", "Params.sketch6_height")
sketch6.setExpression("Constraints[41]", "Params.sketch6_width")
pocket3 = body.newObject("PartDesign::Pocket", "Pocket002")
pocket3.Profile = sketch6
pocket3.setExpression("Length", "Params.pocket3_length")

sketch7 = body.newObject("Sketcher::SketchObject", "Sketch006")
sketch7.AttachmentSupport = (doc.getObject("XY_Plane"), [""])
sketch7.MapMode = "FlatFace"
sketch7.AttachmentOffset = App.Placement(App.Vector(0, 0, 0.065 * 25.4), App.Rotation())
sketch7.addGeometry([
    Part.Circle(App.Vector(110.109, 29.337, 0), App.Vector(0, 0, 1), 1.6383),
    Part.Circle(App.Vector(110.109, 0.381, 0), App.Vector(0, 0, 1), 1.6383),
], False)
sketch7.addConstraint([
    Sketcher.Constraint("Equal", 0, 1),
    Sketcher.Constraint("Vertical", 0, 3, 1, 3),
    Sketcher.Constraint("Diameter", 0, Q("0.129 in")),
    Sketcher.Constraint("DistanceY", 1, 3, 0, 3, Q("1.14 in")),
    Sketcher.Constraint("DistanceX", -1, 1, 0, 3, Q("4.335 in")),
    Sketcher.Constraint("DistanceY", -1, 1, 0, 3, Q("1.155 in")),
])
sketch7.setExpression("Constraints[2]", "Params.sketch7_diameter")
doc.recompute()
hole3 = body.newObject("PartDesign::Hole", "Hole002")
hole3.Profile = sketch7
hole3.ThreadType = "None"
hole3.setExpression("Diameter", "Params.hole3_diameter")
hole3.DepthType = "ThroughAll"

sketch8 = body.newObject("Sketcher::SketchObject", "Sketch007")
sketch8.AttachmentSupport = (doc.getObject("XY_Plane"), [""])
sketch8.MapMode = "FlatFace"
sketch8.AttachmentOffset = App.Placement(App.Vector(0, 0, 0.065 * 25.4), App.Rotation())
sketch8.addGeometry([
    Part.LineSegment(App.Vector(101.5365, 26.289, 0), App.Vector(101.5365, 3.429, 0)),
    Part.LineSegment(App.Vector(101.5365, 3.429, 0), App.Vector(118.6815, 3.429, 0)),
    Part.LineSegment(App.Vector(118.6815, 3.429, 0), App.Vector(118.6815, 26.289, 0)),
    Part.LineSegment(App.Vector(118.6815, 26.289, 0), App.Vector(101.5365, 26.289, 0)),
], False)
sketch8.addConstraint([
    Sketcher.Constraint("Coincident", 0, 2, 1, 1),
    Sketcher.Constraint("Coincident", 1, 2, 2, 1),
    Sketcher.Constraint("Coincident", 2, 2, 3, 1),
    Sketcher.Constraint("Coincident", 3, 2, 0, 1),
    Sketcher.Constraint("Vertical", 0),
    Sketcher.Constraint("Horizontal", 1),
    Sketcher.Constraint("Vertical", 2),
    Sketcher.Constraint("Horizontal", 3),
    Sketcher.Constraint("DistanceY", 0, 2, 0, 1, Q("0.9 in")),
    Sketcher.Constraint("DistanceX", 1, 1, 1, 2, Q("0.675 in")),
    Sketcher.Constraint("DistanceY", -1, 1, 0, 2, Q("0.135 in")),
    Sketcher.Constraint("DistanceX", -1, 1, 0, 2, Q("3.9975 in")),
])
sketch8.setExpression("Constraints[8]", "Params.sketch8_height")
sketch8.setExpression("Constraints[9]", "Params.sketch8_width")
pocket4 = body.newObject("PartDesign::Pocket", "Pocket003")
pocket4.Profile = sketch8
pocket4.setExpression("Length", "Params.pocket4_length")

sketch9 = body.newObject("Sketcher::SketchObject", "Sketch008")
sketch9.AttachmentSupport = (doc.getObject("XY_Plane"), [""])
sketch9.MapMode = "FlatFace"
sketch9.AttachmentOffset = App.Placement(App.Vector(0, 0, 0.065 * 25.4), App.Rotation())
sketch9.addGeometry([
    Part.Circle(App.Vector(101.109, -20.8534, 0), App.Vector(0, 0, 1), 1.1938),
    Part.Circle(App.Vector(119.109, -20.8534, 0), App.Vector(0, 0, 1), 1.1938),
], False)
sketch9.addConstraint([
    Sketcher.Constraint("Equal", 0, 1),
    Sketcher.Constraint("Horizontal", 0, 3, 1, 3),
    Sketcher.Constraint("Diameter", 0, Q("0.094 in")),
    Sketcher.Constraint("DistanceY", 0, 3, -1, 1, Q("0.821 in")),
    Sketcher.Constraint("DistanceX", -1, 1, 0, 3, Q("101.109 mm")),
    Sketcher.Constraint("DistanceX", -1, 1, 1, 3, Q("119.109 mm")),
])
sketch9.setExpression("Constraints[2]", "Params.sketch9_diameter")
doc.recompute()
hole4 = body.newObject("PartDesign::Hole", "Hole003")
hole4.Profile = sketch9
hole4.ThreadType = "None"
hole4.setExpression("Diameter", "Params.hole4_diameter")
hole4.DepthType = "ThroughAll"

sketch10 = body.newObject("Sketcher::SketchObject", "Sketch009")
sketch10.AttachmentSupport = (doc.getObject("XY_Plane"), [""])
sketch10.MapMode = "FlatFace"
sketch10.AttachmentOffset = App.Placement(App.Vector(0, 0, 0.065 * 25.4), App.Rotation())
sketch10.addGeometry([
    Part.LineSegment(App.Vector(116.586, -16.1798, 0), App.Vector(103.632, -16.1798, 0)),
    Part.LineSegment(App.Vector(103.632, -16.1798, 0), App.Vector(103.632, -25.527, 0)),
    Part.LineSegment(App.Vector(103.632, -25.527, 0), App.Vector(116.586, -25.527, 0)),
    Part.LineSegment(App.Vector(116.586, -25.527, 0), App.Vector(116.586, -16.1798, 0)),
], False)
sketch10.addConstraint([
    Sketcher.Constraint("Coincident", 0, 2, 1, 1),
    Sketcher.Constraint("Coincident", 1, 2, 2, 1),
    Sketcher.Constraint("Coincident", 2, 2, 3, 1),
    Sketcher.Constraint("Coincident", 3, 2, 0, 1),
    Sketcher.Constraint("Horizontal", 0),
    Sketcher.Constraint("Vertical", 1),
    Sketcher.Constraint("Horizontal", 2),
    Sketcher.Constraint("Vertical", 3),
    Sketcher.Constraint("DistanceX", 0, 2, 0, 1, Q("0.51 in")),
    Sketcher.Constraint("DistanceY", 1, 2, 1, 1, Q("0.368 in")),
    Sketcher.Constraint("DistanceX", -1, 1, 0, 2, Q("4.08 in")),
    Sketcher.Constraint("DistanceY", 0, 2, -1, 1, Q("0.637 in")),
])
sketch10.setExpression("Constraints[8]", "Params.sketch10_width")
sketch10.setExpression("Constraints[9]", "Params.sketch10_height")
pocket5 = body.newObject("PartDesign::Pocket", "Pocket004")
pocket5.Profile = sketch10
pocket5.setExpression("Length", "Params.pocket5_length")

sketch11 = body.newObject("Sketcher::SketchObject", "Sketch010")
sketch11.AttachmentSupport = (doc.getObject("XY_Plane"), [""])
sketch11.MapMode = "FlatFace"
sketch11.AttachmentOffset = App.Placement(App.Vector(0, 0, 0.065 * 25.4), App.Rotation())
sketch11.addGeometry([
    Part.Circle(App.Vector(146.685, 25.019, 0), App.Vector(0, 0, 1), 2.5527),
    Part.Circle(App.Vector(196.723, 25.019, 0), App.Vector(0, 0, 1), 2.5527),
    Part.Circle(App.Vector(196.723, -25.019, 0), App.Vector(0, 0, 1), 2.5527),
    Part.Circle(App.Vector(146.685, -25.019, 0), App.Vector(0, 0, 1), 2.5527),
], False)
sketch11.addConstraint([
    Sketcher.Constraint("Equal", 0, 1),
    Sketcher.Constraint("Equal", 1, 2),
    Sketcher.Constraint("Equal", 2, 3),
    Sketcher.Constraint("Symmetric", 1, 3, 2, 3, -1),
    Sketcher.Constraint("Symmetric", 0, 3, 3, 3, -1),
    Sketcher.Constraint("Horizontal", 0, 3, 1, 3),
    Sketcher.Constraint("Diameter", 0, Q("0.201 in")),
    Sketcher.Constraint("DistanceX", 0, 3, 1, 3, Q("1.97 in")),
    Sketcher.Constraint("DistanceY", 2, 3, 1, 3, Q("1.97 in")),
    Sketcher.Constraint("DistanceX", -1, 1, 0, 3, Q("5.775 in")),
])
sketch11.setExpression("Constraints[6]", "Params.sketch11_diameter")
doc.recompute()
hole5 = body.newObject("PartDesign::Hole", "Hole004")
hole5.Profile = sketch11
hole5.ThreadType = "None"
hole5.setExpression("Diameter", "Params.hole5_diameter")
hole5.DepthType = "ThroughAll"

sketch12 = body.newObject("Sketcher::SketchObject", "Sketch011")
sketch12.AttachmentSupport = (doc.getObject("XY_Plane"), [""])
sketch12.MapMode = "FlatFace"
sketch12.AttachmentOffset = App.Placement(App.Vector(0, 0, 0.065 * 25.4), App.Rotation())
sketch12.addGeometry([
    Part.LineSegment(App.Vector(150.6195, 21.0845, 0), App.Vector(150.6195, -21.0845, 0)),
    Part.LineSegment(App.Vector(150.6195, -21.0845, 0), App.Vector(192.7885, -21.0845, 0)),
    Part.LineSegment(App.Vector(192.7885, -21.0845, 0), App.Vector(192.7885, 21.0845, 0)),
    Part.LineSegment(App.Vector(192.7885, 21.0845, 0), App.Vector(150.6195, 21.0845, 0)),
], False)
sketch12.addConstraint([
    Sketcher.Constraint("Coincident", 0, 2, 1, 1),
    Sketcher.Constraint("Coincident", 1, 2, 2, 1),
    Sketcher.Constraint("Coincident", 2, 2, 3, 1),
    Sketcher.Constraint("Coincident", 3, 2, 0, 1),
    Sketcher.Constraint("Vertical", 0),
    Sketcher.Constraint("Horizontal", 1),
    Sketcher.Constraint("Vertical", 2),
    Sketcher.Constraint("Horizontal", 3),
    Sketcher.Constraint("Equal", 3, 0),
    Sketcher.Constraint("DistanceX", 1, 1, 1, 2, Q("1.6602 in")),
    Sketcher.Constraint("DistanceX", -1, 1, 0, 2, Q("5.9299 in")),
    Sketcher.Constraint("DistanceY", 0, 2, -1, 1, Q("0.8301 in")),
])
pocket6 = body.newObject("PartDesign::Pocket", "Pocket005")
pocket6.Profile = sketch12
pocket6.Type = "ThroughAll"

doc.recompute()
